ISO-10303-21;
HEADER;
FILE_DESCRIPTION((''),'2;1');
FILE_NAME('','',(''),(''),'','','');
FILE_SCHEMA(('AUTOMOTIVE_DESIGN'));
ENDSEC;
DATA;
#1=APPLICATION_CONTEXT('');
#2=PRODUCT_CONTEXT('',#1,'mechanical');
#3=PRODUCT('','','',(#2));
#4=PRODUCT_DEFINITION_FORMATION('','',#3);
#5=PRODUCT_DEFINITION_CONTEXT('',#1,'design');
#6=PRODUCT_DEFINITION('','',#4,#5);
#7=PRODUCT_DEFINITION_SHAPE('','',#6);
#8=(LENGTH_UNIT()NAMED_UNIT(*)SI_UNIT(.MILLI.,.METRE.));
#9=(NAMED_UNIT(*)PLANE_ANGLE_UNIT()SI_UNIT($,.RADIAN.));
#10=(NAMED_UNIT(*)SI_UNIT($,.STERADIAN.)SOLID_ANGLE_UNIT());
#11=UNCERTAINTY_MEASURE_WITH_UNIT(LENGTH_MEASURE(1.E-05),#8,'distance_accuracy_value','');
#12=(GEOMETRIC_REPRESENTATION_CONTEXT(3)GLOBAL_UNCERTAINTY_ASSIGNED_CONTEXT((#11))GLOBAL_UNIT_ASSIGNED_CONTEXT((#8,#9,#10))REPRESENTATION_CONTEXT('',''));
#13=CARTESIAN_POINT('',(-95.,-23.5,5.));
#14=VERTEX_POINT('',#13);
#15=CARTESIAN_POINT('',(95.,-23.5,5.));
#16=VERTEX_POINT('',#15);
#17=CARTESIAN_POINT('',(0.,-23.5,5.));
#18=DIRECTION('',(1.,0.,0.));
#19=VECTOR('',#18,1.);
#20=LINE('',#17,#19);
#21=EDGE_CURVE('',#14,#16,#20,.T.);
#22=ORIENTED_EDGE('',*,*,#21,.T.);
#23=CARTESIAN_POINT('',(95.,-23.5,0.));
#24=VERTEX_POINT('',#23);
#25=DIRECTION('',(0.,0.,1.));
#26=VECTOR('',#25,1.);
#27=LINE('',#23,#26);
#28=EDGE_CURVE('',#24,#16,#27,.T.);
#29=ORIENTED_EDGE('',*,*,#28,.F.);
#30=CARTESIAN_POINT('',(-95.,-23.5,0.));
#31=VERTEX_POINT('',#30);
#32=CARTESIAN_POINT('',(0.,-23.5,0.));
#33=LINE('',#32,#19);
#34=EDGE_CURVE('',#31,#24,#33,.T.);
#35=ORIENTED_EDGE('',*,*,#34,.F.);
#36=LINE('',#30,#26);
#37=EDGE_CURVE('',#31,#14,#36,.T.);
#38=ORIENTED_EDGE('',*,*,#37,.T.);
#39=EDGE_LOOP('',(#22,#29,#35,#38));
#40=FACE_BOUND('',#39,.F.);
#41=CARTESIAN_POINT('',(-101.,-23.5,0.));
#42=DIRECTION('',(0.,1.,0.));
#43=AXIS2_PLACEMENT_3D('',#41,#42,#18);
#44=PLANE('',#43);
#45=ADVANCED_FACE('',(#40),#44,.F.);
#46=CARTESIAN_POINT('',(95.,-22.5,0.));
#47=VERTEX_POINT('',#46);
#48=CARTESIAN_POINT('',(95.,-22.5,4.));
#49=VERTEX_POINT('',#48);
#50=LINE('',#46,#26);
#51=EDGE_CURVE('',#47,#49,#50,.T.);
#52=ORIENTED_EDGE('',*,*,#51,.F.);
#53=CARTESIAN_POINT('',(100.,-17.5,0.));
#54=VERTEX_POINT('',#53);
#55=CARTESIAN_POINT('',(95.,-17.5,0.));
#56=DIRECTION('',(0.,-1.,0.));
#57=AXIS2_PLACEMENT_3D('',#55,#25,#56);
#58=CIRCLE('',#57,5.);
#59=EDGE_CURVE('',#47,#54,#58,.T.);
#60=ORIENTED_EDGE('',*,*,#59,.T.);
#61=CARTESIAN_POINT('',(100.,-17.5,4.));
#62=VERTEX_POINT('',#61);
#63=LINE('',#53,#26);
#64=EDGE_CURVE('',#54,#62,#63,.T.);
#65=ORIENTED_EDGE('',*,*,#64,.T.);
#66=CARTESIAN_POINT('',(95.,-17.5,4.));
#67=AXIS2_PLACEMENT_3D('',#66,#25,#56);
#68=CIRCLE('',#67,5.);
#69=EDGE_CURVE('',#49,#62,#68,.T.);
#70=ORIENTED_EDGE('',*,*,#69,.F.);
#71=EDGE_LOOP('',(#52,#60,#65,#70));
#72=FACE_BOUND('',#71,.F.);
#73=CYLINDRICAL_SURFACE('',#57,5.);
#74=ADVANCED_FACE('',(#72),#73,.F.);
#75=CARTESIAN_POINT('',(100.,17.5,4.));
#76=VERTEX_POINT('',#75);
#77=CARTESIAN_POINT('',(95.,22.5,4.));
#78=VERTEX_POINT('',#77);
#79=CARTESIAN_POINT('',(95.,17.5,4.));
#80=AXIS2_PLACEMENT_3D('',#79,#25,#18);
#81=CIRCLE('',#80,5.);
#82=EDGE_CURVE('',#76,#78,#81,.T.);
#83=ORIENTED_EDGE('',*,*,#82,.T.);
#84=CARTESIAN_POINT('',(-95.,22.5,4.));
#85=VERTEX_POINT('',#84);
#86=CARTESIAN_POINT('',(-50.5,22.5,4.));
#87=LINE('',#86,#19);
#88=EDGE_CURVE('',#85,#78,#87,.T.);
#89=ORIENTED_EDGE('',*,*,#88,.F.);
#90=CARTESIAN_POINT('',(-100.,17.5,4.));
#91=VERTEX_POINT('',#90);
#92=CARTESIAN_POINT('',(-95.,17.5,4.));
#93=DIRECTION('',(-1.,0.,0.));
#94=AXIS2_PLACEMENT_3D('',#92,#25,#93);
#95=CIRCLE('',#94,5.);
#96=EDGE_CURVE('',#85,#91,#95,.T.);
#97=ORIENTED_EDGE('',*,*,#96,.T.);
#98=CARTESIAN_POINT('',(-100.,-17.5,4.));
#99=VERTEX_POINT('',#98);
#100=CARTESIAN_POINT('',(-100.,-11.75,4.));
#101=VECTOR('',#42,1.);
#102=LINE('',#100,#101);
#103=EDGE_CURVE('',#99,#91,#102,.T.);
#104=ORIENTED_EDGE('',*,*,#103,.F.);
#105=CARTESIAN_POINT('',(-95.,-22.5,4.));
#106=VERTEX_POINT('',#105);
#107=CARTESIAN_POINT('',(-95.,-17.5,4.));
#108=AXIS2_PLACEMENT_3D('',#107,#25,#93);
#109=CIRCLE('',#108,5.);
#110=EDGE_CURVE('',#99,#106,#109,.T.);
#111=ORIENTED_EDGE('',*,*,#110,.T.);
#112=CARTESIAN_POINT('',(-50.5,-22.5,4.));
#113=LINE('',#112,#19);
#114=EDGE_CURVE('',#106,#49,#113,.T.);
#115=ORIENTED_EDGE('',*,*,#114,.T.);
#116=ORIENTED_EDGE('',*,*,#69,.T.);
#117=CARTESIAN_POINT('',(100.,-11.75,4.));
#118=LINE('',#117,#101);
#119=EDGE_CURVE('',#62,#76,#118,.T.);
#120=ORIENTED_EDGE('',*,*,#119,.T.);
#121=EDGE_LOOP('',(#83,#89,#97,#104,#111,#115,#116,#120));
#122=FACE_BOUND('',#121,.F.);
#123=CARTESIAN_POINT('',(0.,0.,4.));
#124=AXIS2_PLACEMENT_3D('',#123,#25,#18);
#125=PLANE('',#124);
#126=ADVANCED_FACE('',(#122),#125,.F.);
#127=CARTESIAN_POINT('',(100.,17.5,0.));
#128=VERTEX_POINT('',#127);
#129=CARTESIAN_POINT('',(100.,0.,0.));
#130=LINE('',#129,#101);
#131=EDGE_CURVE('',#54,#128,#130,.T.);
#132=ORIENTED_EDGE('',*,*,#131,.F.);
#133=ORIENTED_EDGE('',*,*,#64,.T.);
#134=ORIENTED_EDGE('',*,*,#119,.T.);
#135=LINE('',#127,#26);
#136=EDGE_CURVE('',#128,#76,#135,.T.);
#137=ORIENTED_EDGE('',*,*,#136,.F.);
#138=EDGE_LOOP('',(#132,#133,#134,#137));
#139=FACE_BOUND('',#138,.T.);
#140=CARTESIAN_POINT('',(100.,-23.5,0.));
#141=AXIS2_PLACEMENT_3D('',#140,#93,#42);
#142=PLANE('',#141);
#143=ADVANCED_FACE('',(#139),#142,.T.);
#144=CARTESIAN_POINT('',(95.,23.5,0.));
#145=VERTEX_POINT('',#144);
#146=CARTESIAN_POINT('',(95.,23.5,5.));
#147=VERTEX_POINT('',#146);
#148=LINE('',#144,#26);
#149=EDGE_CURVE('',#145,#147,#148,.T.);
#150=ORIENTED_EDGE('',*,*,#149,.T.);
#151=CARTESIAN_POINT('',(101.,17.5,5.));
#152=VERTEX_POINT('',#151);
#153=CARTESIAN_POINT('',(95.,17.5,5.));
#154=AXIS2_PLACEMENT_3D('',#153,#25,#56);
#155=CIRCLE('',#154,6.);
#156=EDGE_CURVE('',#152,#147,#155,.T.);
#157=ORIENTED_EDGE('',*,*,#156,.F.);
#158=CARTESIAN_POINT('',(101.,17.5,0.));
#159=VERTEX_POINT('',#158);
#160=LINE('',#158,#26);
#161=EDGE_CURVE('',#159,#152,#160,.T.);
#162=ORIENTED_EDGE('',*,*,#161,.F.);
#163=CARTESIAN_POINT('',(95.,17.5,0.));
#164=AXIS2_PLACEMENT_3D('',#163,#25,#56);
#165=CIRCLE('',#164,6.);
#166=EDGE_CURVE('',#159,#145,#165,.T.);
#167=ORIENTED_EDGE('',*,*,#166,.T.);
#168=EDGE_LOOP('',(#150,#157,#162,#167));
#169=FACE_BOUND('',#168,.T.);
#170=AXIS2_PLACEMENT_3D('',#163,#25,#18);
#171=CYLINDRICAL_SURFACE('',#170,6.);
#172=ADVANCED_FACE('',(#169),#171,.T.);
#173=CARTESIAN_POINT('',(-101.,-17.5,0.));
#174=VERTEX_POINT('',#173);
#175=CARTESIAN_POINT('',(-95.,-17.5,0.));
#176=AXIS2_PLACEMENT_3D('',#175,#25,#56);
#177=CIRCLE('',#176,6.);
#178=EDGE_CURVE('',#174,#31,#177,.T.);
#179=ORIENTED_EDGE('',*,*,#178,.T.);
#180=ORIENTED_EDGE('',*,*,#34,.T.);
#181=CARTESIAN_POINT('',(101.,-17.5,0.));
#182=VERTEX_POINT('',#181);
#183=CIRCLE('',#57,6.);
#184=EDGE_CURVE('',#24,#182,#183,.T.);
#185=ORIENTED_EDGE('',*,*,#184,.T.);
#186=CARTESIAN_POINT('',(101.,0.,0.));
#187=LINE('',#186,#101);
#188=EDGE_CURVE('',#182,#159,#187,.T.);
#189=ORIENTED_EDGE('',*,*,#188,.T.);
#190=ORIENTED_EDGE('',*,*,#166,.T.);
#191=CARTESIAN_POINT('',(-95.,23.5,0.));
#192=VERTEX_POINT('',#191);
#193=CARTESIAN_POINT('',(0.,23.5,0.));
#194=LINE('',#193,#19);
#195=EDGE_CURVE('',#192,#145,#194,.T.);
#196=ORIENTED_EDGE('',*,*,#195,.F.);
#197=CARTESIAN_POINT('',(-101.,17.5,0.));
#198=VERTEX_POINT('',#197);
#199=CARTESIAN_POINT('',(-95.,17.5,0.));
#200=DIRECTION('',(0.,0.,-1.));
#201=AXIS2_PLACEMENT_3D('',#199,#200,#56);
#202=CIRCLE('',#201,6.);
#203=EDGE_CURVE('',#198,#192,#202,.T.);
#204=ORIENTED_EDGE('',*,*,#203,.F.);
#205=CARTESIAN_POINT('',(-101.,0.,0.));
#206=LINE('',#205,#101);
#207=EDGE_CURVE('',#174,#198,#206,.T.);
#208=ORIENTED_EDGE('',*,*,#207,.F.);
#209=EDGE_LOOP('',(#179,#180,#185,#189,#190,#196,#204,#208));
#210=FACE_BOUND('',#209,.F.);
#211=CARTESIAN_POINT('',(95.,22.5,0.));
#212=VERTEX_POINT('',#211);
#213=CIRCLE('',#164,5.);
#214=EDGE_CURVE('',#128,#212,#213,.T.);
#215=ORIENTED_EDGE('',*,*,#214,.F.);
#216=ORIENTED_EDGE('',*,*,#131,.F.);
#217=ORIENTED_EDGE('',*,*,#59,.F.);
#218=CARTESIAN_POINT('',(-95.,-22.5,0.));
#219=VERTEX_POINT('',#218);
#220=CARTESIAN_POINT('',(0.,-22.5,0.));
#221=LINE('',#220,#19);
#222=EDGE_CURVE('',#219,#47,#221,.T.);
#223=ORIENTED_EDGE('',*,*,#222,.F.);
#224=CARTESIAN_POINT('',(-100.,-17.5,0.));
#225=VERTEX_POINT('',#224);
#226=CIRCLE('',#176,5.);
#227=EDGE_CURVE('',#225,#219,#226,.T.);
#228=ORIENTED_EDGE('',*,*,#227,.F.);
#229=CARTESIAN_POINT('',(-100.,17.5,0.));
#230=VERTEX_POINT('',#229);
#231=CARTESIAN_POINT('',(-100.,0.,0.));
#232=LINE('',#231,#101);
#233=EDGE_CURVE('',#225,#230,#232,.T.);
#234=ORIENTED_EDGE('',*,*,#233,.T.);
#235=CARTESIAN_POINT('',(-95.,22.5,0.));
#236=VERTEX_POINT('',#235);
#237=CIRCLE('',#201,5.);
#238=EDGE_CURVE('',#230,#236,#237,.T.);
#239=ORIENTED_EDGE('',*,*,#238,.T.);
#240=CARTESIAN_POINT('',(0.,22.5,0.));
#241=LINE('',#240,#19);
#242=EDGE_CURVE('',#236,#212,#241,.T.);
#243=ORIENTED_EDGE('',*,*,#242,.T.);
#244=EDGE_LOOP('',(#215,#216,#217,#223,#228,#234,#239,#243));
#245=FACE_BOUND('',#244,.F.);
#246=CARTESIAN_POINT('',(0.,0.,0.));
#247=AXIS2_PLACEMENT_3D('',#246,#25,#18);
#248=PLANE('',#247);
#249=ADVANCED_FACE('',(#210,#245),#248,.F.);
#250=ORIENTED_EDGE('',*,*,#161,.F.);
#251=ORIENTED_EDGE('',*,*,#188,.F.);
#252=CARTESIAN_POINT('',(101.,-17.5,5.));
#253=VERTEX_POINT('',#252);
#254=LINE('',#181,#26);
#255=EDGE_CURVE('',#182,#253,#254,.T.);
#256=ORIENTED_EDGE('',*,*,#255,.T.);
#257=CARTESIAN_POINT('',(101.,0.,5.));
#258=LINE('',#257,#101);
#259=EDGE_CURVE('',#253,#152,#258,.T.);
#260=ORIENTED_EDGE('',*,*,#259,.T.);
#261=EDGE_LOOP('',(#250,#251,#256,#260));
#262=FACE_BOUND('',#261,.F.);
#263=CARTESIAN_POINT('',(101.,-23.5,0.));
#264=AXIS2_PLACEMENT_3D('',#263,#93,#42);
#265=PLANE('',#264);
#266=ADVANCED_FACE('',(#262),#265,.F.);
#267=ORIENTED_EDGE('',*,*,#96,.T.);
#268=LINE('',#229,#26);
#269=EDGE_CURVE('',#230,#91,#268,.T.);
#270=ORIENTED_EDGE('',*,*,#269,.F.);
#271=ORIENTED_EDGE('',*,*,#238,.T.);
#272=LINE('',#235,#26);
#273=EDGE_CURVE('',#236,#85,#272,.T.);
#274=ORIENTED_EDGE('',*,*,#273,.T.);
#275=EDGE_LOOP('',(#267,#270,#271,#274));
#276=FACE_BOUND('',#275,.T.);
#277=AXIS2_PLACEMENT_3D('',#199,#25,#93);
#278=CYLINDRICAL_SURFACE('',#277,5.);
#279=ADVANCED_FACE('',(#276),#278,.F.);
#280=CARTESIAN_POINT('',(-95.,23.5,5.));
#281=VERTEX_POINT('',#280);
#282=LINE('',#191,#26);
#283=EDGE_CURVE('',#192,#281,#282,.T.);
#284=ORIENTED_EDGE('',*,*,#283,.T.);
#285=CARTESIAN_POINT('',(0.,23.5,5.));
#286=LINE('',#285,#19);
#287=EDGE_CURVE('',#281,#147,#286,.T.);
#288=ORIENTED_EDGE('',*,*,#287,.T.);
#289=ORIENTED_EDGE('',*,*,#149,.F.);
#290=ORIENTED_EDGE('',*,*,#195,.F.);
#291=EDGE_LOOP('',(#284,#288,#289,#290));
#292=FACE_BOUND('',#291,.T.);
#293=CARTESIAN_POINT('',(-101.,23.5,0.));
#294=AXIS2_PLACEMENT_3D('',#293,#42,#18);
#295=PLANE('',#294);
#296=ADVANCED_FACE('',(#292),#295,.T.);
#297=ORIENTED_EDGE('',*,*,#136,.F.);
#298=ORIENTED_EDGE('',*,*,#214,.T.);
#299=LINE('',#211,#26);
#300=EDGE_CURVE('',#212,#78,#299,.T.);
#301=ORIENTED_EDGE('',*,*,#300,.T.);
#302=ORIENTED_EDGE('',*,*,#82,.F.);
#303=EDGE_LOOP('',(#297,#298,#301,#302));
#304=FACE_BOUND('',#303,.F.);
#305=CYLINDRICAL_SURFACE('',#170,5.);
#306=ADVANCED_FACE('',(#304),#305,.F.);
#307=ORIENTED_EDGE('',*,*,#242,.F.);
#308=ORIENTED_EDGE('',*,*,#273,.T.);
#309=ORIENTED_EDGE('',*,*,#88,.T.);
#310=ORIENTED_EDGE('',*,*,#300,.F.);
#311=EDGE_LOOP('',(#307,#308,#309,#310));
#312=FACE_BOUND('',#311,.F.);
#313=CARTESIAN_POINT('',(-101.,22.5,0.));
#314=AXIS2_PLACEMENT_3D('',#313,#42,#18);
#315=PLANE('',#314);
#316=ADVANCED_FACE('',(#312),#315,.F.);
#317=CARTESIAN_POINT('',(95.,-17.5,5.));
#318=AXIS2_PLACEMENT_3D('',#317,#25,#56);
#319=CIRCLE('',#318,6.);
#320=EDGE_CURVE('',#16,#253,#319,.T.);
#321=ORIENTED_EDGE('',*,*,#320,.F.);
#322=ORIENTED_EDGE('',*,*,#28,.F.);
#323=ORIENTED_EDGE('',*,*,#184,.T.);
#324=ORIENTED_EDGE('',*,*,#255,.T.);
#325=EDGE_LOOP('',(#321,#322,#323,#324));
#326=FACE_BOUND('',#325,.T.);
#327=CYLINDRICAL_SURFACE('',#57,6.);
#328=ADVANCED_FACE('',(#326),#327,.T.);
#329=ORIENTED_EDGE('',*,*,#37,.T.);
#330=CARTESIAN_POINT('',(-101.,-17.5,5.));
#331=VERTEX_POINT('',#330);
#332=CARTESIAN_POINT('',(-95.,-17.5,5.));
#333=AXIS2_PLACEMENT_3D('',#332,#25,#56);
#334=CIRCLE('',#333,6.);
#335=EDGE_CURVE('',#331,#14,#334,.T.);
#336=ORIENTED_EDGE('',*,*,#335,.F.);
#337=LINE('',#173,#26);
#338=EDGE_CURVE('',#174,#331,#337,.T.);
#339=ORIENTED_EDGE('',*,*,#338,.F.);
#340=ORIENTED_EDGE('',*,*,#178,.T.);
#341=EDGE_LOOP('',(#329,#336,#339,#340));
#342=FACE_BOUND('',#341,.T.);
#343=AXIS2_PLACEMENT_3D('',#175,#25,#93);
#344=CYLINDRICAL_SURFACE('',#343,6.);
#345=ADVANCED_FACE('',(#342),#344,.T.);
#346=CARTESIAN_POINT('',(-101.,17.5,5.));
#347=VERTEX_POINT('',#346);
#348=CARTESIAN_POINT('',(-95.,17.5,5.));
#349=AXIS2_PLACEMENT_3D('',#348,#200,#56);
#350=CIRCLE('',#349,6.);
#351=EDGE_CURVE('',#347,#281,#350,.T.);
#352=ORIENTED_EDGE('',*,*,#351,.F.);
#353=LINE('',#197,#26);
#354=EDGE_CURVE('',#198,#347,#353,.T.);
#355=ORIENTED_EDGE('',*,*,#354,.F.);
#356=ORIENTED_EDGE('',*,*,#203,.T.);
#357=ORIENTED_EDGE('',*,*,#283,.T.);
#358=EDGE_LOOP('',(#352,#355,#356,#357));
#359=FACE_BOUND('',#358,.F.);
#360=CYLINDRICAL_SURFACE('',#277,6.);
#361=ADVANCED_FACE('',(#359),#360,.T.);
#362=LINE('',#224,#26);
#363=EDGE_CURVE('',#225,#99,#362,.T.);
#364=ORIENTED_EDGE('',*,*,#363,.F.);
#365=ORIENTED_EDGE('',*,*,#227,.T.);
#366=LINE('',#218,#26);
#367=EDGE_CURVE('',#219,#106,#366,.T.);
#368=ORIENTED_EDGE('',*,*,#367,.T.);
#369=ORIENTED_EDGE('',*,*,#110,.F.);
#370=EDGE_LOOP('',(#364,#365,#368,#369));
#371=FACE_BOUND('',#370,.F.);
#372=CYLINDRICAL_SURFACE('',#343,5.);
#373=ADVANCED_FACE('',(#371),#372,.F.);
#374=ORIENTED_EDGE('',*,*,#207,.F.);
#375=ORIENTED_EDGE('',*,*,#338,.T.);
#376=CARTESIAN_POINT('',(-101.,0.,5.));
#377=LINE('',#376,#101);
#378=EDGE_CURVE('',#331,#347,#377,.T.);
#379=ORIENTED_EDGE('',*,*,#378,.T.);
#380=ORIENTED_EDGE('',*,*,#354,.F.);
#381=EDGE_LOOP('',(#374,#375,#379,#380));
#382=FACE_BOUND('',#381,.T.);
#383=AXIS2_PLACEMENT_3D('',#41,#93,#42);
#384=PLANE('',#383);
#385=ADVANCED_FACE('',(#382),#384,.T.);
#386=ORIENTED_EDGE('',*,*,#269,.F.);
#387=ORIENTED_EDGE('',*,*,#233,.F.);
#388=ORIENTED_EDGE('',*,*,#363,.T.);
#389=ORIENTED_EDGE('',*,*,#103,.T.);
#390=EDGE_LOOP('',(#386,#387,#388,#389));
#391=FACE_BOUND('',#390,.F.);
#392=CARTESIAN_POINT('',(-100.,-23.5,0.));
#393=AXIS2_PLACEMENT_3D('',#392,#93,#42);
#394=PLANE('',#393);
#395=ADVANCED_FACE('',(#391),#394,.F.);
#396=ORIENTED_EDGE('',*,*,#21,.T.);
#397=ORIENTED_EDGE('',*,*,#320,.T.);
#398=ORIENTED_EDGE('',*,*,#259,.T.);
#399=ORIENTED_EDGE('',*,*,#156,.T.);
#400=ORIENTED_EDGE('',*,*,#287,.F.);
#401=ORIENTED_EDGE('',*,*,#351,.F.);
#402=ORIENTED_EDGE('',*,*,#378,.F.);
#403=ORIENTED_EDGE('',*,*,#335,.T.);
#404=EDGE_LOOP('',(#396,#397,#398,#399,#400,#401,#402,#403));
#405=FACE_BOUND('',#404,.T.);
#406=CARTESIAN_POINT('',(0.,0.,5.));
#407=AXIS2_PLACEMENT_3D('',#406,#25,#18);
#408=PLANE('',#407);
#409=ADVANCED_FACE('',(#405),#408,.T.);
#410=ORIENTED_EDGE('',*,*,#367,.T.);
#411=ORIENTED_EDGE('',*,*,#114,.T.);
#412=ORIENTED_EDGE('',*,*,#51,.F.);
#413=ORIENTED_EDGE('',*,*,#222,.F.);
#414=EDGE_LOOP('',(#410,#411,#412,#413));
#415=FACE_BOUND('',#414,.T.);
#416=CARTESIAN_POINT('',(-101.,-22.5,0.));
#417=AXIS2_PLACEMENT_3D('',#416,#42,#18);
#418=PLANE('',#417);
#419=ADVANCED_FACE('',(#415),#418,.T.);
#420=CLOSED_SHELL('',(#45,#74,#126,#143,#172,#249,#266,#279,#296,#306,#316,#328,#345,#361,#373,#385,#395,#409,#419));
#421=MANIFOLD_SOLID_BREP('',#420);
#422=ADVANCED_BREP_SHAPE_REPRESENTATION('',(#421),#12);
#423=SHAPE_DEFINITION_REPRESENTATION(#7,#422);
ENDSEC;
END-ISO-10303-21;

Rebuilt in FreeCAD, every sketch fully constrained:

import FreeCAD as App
import Part
import Sketcher
from FreeCAD import Vector
Q = App.Units.Quantity


def edges_at(feature, points):
    """Names of the edges that pass closest to the given points."""
    edges = feature.Shape.Edges
    near = lambda p: min(range(len(edges)), key=lambda i: edges[i].distToShape(Part.Vertex(*p))[0])
    return sorted({f"Edge{near(p) + 1}" for p in points})


def faces_at(feature, points):
    """Names of the faces that lie closest to the given points."""
    faces = feature.Shape.Faces
    near = lambda p: min(range(len(faces)), key=lambda i: faces[i].distToShape(Part.Vertex(*p))[0])
    return sorted({f"Face{near(p) + 1}" for p in points})


def add_polygon(sketch, points):
    """Adds a closed chain of lines whose ends are joined by coincident constraints."""
    first, n = sketch.GeometryCount, len(points)
    for a, b in zip(points, points[1:] + points[:1]):
        sketch.addGeometry(Part.LineSegment(App.Vector(*a, 0), App.Vector(*b, 0)), False)
    for i in range(n):
        sketch.addConstraint(Sketcher.Constraint("Coincident", first + i, 2, first + (i + 1) % n, 1))

doc = App.newDocument("Part")
params = doc.addObject("Spreadsheet::Sheet", "Params")
for row, (alias, value) in enumerate([
    ("sketch1_width", "202 mm"),
    ("sketch1_height", "47 mm"),
    ("pad1_length", "5 mm"),
    ("fillet_radius", "6 mm"),
    ("thickness_wall", "1 mm"),
], start=1):
    params.set(f"A{row}", alias)
    params.set(f"B{row}", "=" + value)
    params.setAlias(f"B{row}", alias)

body = doc.addObject("PartDesign::Body", "Body")

# Sketch on XY plane
sketch1 = body.newObject("Sketcher::SketchObject", "Sketch")
sketch1.AttachmentSupport = (doc.getObject("XY_Plane"), [""])
sketch1.MapMode = "FlatFace"
add_polygon(sketch1, [(-101, 24), (-101, -24), (101, -24), (101, 24)])  # lines 0-3
sketch1.addConstraint(Sketcher.Constraint("Vertical", 0))
sketch1.addConstraint(Sketcher.Constraint("Horizontal", 1))
sketch1.addConstraint(Sketcher.Constraint("Vertical", 2))
sketch1.addConstraint(Sketcher.Constraint("Horizontal", 3))
sketch1.addConstraint(Sketcher.Constraint("Symmetric", 0, 2, 2, 2, -1, 1))
sketch1.addConstraint(Sketcher.Constraint("DistanceX", 1, 1, 1, 2, Q("202 mm")))
sketch1.addConstraint(Sketcher.Constraint("DistanceY", 0, 2, 0, 1, Q("47 mm")))
sketch1.setExpression("Constraints[9]", "Params.sketch1_width")
sketch1.setExpression("Constraints[10]", "Params.sketch1_height")
pad1 = body.newObject("PartDesign::Pad", "Pad")
pad1.Profile = sketch1
pad1.setExpression("Length", "Params.pad1_length")
doc.recompute()

fillet = body.newObject("PartDesign::Fillet", "Fillet")
fillet.Base = (pad1, edges_at(pad1, [
    (-101, -23.5, 2.5),
    (101, -23.5, 2.5),
    (-101, 23.5, 2.5),
    (101, 23.5, 2.5),
]))
fillet.setExpression("Radius", "Params.fillet_radius")
doc.recompute()

thickness = body.newObject("PartDesign::Thickness", "Thickness")
thickness.Base = (fillet, faces_at(fillet, [(0, 0, 0)]))
thickness.setExpression("Value", "Params.thickness_wall")
thickness.Reversed = True
thickness.Join = "Arc"

doc.recompute()
